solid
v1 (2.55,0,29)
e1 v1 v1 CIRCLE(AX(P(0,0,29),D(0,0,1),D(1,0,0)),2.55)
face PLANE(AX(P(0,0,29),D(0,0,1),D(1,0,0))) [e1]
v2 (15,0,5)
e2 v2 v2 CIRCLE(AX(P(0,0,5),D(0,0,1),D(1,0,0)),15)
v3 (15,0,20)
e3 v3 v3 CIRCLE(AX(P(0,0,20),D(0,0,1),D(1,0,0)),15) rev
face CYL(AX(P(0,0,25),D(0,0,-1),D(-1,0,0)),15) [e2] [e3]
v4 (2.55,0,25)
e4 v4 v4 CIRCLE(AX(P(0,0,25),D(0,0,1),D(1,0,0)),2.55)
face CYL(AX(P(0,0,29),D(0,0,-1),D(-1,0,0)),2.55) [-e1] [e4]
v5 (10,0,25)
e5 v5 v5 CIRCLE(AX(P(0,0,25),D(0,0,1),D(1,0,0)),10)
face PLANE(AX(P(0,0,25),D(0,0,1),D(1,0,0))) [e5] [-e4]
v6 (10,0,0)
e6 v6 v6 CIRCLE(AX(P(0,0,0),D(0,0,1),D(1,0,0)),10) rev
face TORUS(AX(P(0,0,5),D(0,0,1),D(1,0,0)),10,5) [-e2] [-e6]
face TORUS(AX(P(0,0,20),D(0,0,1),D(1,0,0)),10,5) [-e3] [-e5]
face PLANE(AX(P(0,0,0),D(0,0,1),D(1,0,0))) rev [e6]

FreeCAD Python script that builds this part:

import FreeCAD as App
import Part
import Sketcher
from FreeCAD import Vector


def edges_at(feature, points):
    """Names of the edges that pass closest to the given points."""
    edges = feature.Shape.Edges
    near = lambda p: min(range(len(edges)), key=lambda i: edges[i].distToShape(Part.Vertex(*p))[0])
    return sorted({f"Edge{near(p) + 1}" for p in points})

doc = App.newDocument("Part")
body = doc.addObject("PartDesign::Body", "Body")

# Sketch on XY plane
sketch1 = doc.addObject("Sketcher::SketchObject", "Sketch")
body.addObject(sketch1)
sketch1.AttachmentSupport = (doc.XY_Plane, [""])
sketch1.MapMode = "FlatFace"
sketch1.addGeometry(Part.Circle(Vector(0, 0, 0), Vector(0, 0, 1), 15), False)
sketch1.addConstraint(Sketcher.Constraint("Coincident", 0, 3, -1, 1))
sketch1.addConstraint(Sketcher.Constraint("Diameter", 0, 30.0))
pad1 = doc.addObject("PartDesign::Pad", "Pad")
body.addObject(pad1)
pad1.Profile = sketch1
pad1.Length = 25
doc.recompute()

fillet = doc.addObject("PartDesign::Fillet", "Fillet")
body.addObject(fillet)
fillet.Base = (pad1, edges_at(pad1, [(-15, 0, 0), (-15, 0, 25)]))
fillet.Radius = 5

# Sketch on XY plane
sketch2 = doc.addObject("Sketcher::SketchObject", "Sketch001")
body.addObject(sketch2)
sketch2.AttachmentSupport = (doc.XY_Plane, [""])
sketch2.MapMode = "FlatFace"
sketch2.AttachmentOffset = App.Placement(Vector(0, 0, 25), App.Rotation())
sketch2.addGeometry(Part.Circle(Vector(0, 0, 0), Vector(0, 0, 1), 2.55), False)
sketch2.addConstraint(Sketcher.Constraint("Coincident", 0, 3, -1, 1))
sketch2.addConstraint(Sketcher.Constraint("Diameter", 0, 5.1))
pad2 = doc.addObject("PartDesign::Pad", "Pad001")
body.addObject(pad2)
pad2.Profile = sketch2
pad2.Length = 4

doc.recompute()
